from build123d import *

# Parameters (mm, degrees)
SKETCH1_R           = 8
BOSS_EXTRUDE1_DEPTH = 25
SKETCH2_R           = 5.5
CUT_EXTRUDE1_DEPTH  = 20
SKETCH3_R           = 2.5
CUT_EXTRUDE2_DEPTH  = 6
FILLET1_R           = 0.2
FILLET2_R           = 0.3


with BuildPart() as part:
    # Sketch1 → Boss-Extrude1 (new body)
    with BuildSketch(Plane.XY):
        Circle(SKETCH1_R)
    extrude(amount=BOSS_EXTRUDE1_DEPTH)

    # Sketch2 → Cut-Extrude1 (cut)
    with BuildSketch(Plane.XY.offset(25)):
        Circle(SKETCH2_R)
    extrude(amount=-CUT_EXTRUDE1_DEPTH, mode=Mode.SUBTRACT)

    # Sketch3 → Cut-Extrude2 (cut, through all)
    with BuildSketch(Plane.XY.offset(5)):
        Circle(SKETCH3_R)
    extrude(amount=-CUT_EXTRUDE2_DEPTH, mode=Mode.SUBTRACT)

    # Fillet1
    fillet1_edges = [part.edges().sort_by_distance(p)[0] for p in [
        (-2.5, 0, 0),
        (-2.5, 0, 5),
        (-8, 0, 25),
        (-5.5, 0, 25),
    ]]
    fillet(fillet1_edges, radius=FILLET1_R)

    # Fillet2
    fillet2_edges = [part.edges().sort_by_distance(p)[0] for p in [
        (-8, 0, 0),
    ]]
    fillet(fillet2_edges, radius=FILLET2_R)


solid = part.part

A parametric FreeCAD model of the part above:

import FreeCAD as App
import Part
import Sketcher
Q = App.Units.Quantity


def edges_at(feature, points):
    """Names of the edges that pass closest to the given points."""
    edges = feature.Shape.Edges
    near = lambda p: min(range(len(edges)), key=lambda i: edges[i].distToShape(Part.Vertex(*p))[0])
    return sorted({f"Edge{near(p) + 1}" for p in points})

doc = App.newDocument("Part")
body = doc.addObject("PartDesign::Body", "Body")

# Sketch on XY plane
sketch1 = doc.addObject("Sketcher::SketchObject", "Sketch")
body.addObject(sketch1)
sketch1.AttachmentSupport = (doc.XY_Plane, [""])
sketch1.MapMode = "FlatFace"
sketch1.addGeometry(Part.Circle(App.Vector(0, 0, 0), App.Vector(0, 0, 1), 8), False)
sketch1.addConstraint([
    Sketcher.Constraint("Coincident", 0, 3, -1, 1),
    Sketcher.Constraint("Diameter", 0, Q("16 mm")),
])
pad1 = doc.addObject("PartDesign::Pad", "Pad")
body.addObject(pad1)
pad1.Profile = sketch1
pad1.Length = 25

# Sketch on XY plane
sketch2 = doc.addObject("Sketcher::SketchObject", "Sketch001")
body.addObject(sketch2)
sketch2.AttachmentSupport = (doc.XY_Plane, [""])
sketch2.MapMode = "FlatFace"
sketch2.AttachmentOffset = App.Placement(App.Vector(0, 0, 25), App.Rotation())
sketch2.addGeometry(Part.Circle(App.Vector(0, 0, 0), App.Vector(0, 0, 1), 5.5), False)
sketch2.addConstraint([
    Sketcher.Constraint("Coincident", 0, 3, -1, 1),
    Sketcher.Constraint("Diameter", 0, Q("11 mm")),
])
pocket1 = doc.addObject("PartDesign::Pocket", "Pocket")
body.addObject(pocket1)
pocket1.Profile = sketch2
pocket1.Length = 20

# Sketch on XY plane
sketch3 = doc.addObject("Sketcher::SketchObject", "Sketch002")
body.addObject(sketch3)
sketch3.AttachmentSupport = (doc.XY_Plane, [""])
sketch3.MapMode = "FlatFace"
sketch3.AttachmentOffset = App.Placement(App.Vector(0, 0, 5), App.Rotation())
sketch3.addGeometry(Part.Circle(App.Vector(0, 0, 0), App.Vector(0, 0, 1), 2.5), False)
sketch3.addConstraint([
    Sketcher.Constraint("Coincident", 0, 3, -1, 1),
    Sketcher.Constraint("Diameter", 0, Q("5 mm")),
])
pocket2 = doc.addObject("PartDesign::Pocket", "Pocket001")
body.addObject(pocket2)
pocket2.Profile = sketch3
pocket2.Type = "ThroughAll"
doc.recompute()

fillet = doc.addObject("PartDesign::Fillet", "Fillet")
body.addObject(fillet)
fillet.Base = (pocket2, edges_at(pocket2, [
    (-2.5, 0, 0),
    (-2.5, 0, 5),
    (-8, 0, 25),
    (-5.5, 0, 25),
]))
fillet.Radius = 0.2
doc.recompute()

fillet2 = doc.addObject("PartDesign::Fillet", "Fillet001")
body.addObject(fillet2)
fillet2.Base = (fillet, edges_at(fillet, [(-8, 0, 0)]))
fillet2.Radius = 0.3

doc.recompute()
